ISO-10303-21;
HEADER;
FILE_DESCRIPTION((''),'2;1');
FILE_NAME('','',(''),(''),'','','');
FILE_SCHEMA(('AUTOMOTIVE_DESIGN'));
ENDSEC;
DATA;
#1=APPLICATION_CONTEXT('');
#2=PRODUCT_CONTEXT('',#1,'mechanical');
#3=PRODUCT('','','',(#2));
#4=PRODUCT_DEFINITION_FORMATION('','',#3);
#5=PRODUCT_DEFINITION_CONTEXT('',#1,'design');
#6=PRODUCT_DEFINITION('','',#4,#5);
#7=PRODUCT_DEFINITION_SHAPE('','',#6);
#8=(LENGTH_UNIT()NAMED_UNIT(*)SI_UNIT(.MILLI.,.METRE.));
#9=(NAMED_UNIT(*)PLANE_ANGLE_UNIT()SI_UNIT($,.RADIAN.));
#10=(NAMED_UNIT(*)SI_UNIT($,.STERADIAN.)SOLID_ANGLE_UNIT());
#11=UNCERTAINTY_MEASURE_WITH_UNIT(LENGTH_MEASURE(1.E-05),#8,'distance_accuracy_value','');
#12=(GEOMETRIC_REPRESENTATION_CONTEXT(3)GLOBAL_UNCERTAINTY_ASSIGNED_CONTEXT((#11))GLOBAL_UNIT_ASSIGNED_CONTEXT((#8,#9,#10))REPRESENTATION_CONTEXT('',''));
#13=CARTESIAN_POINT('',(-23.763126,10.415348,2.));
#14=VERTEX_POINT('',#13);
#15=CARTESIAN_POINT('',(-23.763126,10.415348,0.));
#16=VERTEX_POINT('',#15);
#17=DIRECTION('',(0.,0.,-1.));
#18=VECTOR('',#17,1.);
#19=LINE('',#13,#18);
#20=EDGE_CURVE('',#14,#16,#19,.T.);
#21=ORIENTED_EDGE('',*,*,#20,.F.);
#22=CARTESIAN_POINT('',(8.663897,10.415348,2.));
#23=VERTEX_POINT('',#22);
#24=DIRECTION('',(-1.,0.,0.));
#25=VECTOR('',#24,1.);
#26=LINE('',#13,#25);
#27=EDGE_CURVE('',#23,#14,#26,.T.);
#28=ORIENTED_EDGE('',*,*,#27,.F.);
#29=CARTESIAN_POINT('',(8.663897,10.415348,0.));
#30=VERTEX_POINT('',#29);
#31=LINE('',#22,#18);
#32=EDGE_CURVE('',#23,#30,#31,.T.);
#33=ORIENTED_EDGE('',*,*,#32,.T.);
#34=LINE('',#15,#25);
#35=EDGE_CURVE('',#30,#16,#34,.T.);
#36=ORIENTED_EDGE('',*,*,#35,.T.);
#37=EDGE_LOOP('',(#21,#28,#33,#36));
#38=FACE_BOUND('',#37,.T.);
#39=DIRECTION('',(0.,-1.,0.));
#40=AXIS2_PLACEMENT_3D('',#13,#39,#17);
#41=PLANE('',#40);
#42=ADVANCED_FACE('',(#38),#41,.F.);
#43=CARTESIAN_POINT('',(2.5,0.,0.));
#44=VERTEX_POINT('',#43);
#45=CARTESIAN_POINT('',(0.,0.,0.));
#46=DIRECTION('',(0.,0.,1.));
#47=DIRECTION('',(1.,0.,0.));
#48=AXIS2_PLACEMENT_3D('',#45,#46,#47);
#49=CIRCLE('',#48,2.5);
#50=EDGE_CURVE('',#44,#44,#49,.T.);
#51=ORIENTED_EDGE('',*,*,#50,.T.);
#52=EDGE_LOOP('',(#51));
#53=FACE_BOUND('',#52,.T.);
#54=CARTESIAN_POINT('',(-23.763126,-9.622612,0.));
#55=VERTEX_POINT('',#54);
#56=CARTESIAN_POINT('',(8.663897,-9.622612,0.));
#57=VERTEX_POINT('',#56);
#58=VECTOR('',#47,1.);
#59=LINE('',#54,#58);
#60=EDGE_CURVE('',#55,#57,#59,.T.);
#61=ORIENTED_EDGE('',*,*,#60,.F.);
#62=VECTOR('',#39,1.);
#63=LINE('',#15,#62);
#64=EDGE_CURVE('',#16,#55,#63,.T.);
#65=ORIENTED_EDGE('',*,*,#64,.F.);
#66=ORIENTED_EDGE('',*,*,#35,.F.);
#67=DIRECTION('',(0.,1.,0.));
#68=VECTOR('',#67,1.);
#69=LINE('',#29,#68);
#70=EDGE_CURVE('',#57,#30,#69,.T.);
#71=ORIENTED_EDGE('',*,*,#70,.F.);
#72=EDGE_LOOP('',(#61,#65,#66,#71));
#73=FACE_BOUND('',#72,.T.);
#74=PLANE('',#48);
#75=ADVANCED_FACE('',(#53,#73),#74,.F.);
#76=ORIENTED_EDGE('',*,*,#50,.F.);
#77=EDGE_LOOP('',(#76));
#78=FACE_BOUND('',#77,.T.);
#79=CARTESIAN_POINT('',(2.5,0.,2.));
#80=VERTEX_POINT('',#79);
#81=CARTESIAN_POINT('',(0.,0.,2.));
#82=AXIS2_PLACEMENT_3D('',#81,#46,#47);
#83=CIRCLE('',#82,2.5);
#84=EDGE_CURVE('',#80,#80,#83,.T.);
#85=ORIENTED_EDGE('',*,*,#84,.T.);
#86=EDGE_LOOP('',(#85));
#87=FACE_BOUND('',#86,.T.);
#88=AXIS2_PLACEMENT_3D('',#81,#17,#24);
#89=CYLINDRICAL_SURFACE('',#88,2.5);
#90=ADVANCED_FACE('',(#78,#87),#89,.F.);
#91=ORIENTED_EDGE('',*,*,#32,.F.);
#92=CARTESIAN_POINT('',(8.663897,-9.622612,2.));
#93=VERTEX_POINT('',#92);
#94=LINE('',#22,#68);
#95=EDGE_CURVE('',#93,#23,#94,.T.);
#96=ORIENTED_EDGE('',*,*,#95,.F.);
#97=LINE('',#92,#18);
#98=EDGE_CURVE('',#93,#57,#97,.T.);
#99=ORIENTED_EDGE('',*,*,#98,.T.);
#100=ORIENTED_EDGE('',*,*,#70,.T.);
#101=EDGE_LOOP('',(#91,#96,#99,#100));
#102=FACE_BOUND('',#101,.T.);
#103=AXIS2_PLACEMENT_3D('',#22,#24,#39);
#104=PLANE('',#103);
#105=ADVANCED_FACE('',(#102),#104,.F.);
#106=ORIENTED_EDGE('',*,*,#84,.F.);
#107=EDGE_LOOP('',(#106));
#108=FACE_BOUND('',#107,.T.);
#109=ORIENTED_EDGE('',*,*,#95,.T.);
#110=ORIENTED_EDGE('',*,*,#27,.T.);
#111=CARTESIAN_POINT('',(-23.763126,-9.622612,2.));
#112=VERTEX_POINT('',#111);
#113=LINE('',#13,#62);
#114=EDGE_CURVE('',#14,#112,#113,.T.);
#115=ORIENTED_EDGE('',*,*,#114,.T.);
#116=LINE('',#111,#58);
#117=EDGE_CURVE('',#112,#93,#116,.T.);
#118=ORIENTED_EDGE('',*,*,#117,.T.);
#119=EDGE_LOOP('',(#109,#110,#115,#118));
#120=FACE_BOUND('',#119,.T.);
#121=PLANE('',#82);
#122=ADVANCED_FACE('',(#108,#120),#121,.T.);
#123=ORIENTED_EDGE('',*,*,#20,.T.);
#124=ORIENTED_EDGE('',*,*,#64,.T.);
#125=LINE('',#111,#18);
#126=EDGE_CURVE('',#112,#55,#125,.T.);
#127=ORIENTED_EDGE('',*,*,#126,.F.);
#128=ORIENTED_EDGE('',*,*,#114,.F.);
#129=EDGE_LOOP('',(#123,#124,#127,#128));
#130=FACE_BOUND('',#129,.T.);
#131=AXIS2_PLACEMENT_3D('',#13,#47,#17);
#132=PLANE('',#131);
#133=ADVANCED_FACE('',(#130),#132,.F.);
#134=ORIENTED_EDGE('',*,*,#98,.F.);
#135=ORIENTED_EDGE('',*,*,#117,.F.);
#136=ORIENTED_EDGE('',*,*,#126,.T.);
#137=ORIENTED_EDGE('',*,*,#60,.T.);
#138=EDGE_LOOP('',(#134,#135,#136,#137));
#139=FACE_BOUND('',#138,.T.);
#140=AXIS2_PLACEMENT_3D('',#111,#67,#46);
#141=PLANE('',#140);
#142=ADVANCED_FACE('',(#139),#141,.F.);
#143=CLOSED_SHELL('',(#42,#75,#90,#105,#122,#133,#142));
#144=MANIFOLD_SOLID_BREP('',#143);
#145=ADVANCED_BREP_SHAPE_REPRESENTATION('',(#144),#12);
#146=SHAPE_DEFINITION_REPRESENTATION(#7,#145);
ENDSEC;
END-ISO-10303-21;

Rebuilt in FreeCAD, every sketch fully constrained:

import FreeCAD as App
import Part
import Sketcher
Q = App.Units.Quantity


def add_polygon(sketch, points):
    """Adds a closed chain of lines whose ends are joined by coincident constraints."""
    first, n = sketch.GeometryCount, len(points)
    for a, b in zip(points, points[1:] + points[:1]):
        sketch.addGeometry(Part.LineSegment(App.Vector(*a, 0), App.Vector(*b, 0)), False)
    for i in range(n):
        sketch.addConstraint(Sketcher.Constraint("Coincident", first + i, 2, first + (i + 1) % n, 1))

doc = App.newDocument("Part")
body = doc.addObject("PartDesign::Body", "Body")

# Sketch on XY plane
sketch1 = body.newObject("Sketcher::SketchObject", "Sketch")
sketch1.AttachmentSupport = (doc.getObject("XY_Plane"), [""])
sketch1.MapMode = "FlatFace"
add_polygon(sketch1, [(-23.763126, 10.415348), (-23.763126, -9.622612), (8.663897, -9.622612), (8.663897, 10.415348)])  # lines 0-3
sketch1.addGeometry(Part.Circle(App.Vector(0, 0, 0), App.Vector(0, 0, 1), 2.5), False)  # 4
sketch1.addConstraint(Sketcher.Constraint("Vertical", 0))
sketch1.addConstraint(Sketcher.Constraint("Horizontal", 1))
sketch1.addConstraint(Sketcher.Constraint("Vertical", 2))
sketch1.addConstraint(Sketcher.Constraint("Horizontal", 3))
sketch1.addConstraint(Sketcher.Constraint("Coincident", 4, 3, -1, 1))
sketch1.addConstraint(Sketcher.Constraint("Diameter", 4, Q("5 mm")))
sketch1.addConstraint(Sketcher.Constraint("DistanceY", 0, 2, 0, 1, Q("20.037961 mm")))
sketch1.addConstraint(Sketcher.Constraint("DistanceX", 1, 1, 1, 2, Q("32.427022 mm")))
sketch1.addConstraint(Sketcher.Constraint("DistanceY", -1, 1, 2, 2, Q("10.415348 mm")))
sketch1.addConstraint(Sketcher.Constraint("DistanceX", 0, 2, -1, 1, Q("23.763126 mm")))
pad1 = body.newObject("PartDesign::Pad", "Pad")
pad1.Profile = sketch1
pad1.Length = 2

doc.recompute()
